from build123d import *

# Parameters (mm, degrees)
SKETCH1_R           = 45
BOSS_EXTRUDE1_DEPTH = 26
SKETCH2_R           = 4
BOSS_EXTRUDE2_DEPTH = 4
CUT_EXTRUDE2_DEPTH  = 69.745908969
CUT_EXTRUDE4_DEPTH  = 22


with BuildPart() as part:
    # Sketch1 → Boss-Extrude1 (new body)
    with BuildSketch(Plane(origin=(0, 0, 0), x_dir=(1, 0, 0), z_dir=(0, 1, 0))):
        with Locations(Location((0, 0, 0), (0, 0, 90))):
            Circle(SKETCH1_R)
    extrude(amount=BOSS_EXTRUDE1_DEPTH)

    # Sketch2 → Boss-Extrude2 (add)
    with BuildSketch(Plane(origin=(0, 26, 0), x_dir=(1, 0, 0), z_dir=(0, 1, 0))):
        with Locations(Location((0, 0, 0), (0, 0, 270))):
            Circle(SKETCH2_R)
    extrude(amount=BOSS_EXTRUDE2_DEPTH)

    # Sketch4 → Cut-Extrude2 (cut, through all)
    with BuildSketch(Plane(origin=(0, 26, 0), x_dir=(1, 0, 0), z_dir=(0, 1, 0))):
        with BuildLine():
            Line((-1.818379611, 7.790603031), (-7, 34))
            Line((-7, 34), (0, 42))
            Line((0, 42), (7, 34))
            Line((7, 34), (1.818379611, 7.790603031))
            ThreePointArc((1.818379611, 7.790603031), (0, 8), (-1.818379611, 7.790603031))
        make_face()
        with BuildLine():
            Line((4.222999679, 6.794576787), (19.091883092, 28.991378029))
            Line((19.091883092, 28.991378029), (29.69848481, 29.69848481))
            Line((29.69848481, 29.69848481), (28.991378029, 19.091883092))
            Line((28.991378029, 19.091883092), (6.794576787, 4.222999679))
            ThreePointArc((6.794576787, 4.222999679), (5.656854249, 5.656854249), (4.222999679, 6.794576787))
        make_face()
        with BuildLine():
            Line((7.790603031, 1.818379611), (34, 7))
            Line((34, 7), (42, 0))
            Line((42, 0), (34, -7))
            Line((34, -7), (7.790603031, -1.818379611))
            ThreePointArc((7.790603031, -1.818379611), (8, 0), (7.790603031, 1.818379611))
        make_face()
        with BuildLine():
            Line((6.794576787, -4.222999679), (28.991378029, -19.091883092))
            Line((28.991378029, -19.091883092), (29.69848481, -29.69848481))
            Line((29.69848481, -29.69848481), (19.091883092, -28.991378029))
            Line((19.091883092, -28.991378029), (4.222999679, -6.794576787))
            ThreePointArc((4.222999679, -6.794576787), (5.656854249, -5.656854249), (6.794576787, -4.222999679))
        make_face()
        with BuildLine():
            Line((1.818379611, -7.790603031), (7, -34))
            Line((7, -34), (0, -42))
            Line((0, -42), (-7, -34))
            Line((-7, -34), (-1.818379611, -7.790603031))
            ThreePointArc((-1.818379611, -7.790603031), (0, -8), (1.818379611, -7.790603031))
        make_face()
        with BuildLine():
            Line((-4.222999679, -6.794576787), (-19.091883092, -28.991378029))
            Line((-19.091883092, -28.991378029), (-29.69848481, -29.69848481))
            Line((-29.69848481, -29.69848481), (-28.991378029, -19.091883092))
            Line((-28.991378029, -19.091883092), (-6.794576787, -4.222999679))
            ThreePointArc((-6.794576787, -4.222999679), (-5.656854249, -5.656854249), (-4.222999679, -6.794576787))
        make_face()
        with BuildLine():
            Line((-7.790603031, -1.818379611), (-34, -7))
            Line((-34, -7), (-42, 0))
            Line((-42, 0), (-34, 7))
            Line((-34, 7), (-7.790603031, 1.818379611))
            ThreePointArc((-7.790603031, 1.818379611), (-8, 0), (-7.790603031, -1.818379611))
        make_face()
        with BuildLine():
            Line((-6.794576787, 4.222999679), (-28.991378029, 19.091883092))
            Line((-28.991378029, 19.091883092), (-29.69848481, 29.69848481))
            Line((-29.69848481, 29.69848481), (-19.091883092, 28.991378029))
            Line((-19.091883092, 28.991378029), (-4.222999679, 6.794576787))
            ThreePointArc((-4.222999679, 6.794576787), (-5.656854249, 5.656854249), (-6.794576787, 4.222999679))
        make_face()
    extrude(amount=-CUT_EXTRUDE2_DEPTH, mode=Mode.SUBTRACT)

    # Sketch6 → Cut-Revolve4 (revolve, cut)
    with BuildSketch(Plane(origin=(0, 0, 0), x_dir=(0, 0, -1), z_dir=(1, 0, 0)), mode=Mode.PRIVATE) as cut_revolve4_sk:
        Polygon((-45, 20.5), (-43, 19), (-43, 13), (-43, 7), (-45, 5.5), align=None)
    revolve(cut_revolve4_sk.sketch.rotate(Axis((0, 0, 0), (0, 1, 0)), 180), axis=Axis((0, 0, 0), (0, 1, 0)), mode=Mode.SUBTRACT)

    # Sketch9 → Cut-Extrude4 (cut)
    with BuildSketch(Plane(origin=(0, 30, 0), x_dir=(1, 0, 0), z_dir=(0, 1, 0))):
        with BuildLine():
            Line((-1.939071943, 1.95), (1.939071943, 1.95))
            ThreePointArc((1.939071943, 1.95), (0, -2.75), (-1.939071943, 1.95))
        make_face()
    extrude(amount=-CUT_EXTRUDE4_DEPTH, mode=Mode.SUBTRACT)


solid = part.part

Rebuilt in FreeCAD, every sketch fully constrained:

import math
import FreeCAD as App
import Part
import Sketcher
from FreeCAD import Vector
Q = App.Units.Quantity

doc = App.newDocument("Part")
body = doc.addObject("PartDesign::Body", "Body")

# Sketch on XZ plane
sketch1 = body.newObject("Sketcher::SketchObject", "Sketch")
sketch1.AttachmentSupport = (doc.getObject("XZ_Plane"), [""])
sketch1.MapMode = "FlatFace"
sketch1.addGeometry(Part.Circle(Vector(0, 0, 0), Vector(0, 0, 1), 45), False)
sketch1.addConstraint(Sketcher.Constraint("Coincident", 0, 3, -1, 1))
sketch1.addConstraint(Sketcher.Constraint("Diameter", 0, Q("90 mm")))
pad1 = body.newObject("PartDesign::Pad", "Pad")
pad1.Profile = sketch1
pad1.Length = 26
pad1.Reversed = True

# Sketch on XZ plane
sketch2 = body.newObject("Sketcher::SketchObject", "Sketch001")
sketch2.AttachmentSupport = (doc.getObject("XZ_Plane"), [""])
sketch2.MapMode = "FlatFace"
sketch2.AttachmentOffset = App.Placement(Vector(0, 0, -26), App.Rotation())
sketch2.addGeometry(Part.Circle(Vector(0, 0, 0), Vector(0, 0, 1), 4), False)
sketch2.addConstraint(Sketcher.Constraint("Coincident", 0, 3, -1, 1))
sketch2.addConstraint(Sketcher.Constraint("Diameter", 0, Q("8 mm")))
pad2 = body.newObject("PartDesign::Pad", "Pad001")
pad2.Profile = sketch2
pad2.Length = 4
pad2.Reversed = True

# Sketch on XZ plane
sketch3 = body.newObject("Sketcher::SketchObject", "Sketch002")
sketch3.AttachmentSupport = (doc.getObject("XZ_Plane"), [""])
sketch3.MapMode = "FlatFace"
sketch3.AttachmentOffset = App.Placement(Vector(0, 0, -26), App.Rotation())
sketch3.addGeometry(Part.LineSegment(Vector(-7, -34, 0), Vector(-1.8, -7.8, 0)), False)
sketch3.addGeometry(Part.ArcOfCircle(Part.Circle(Vector(0, 0, 0), Vector(0, 0, 1), 8), math.radians(-103), math.radians(-77)), False)
sketch3.addGeometry(Part.LineSegment(Vector(1.8, -7.8, 0), Vector(7, -34, 0)), False)
sketch3.addGeometry(Part.LineSegment(Vector(7, -34, 0), Vector(0, -42, 0)), False)
sketch3.addGeometry(Part.LineSegment(Vector(0, -42, 0), Vector(-7, -34, 0)), False)
sketch3.addGeometry(Part.LineSegment(Vector(19.1, -29, 0), Vector(4.2, -6.8, 0)), False)
sketch3.addGeometry(Part.ArcOfCircle(Part.Circle(Vector(0, 0, 0), Vector(0, 0, 1), 8), math.radians(-58), math.radians(-32)), False)
sketch3.addGeometry(Part.LineSegment(Vector(6.8, -4.2, 0), Vector(29, -19.1, 0)), False)
sketch3.addGeometry(Part.LineSegment(Vector(29, -19.1, 0), Vector(29.7, -29.7, 0)), False)
sketch3.addGeometry(Part.LineSegment(Vector(29.7, -29.7, 0), Vector(19.1, -29, 0)), False)
sketch3.addGeometry(Part.LineSegment(Vector(34, -7, 0), Vector(7.8, -1.8, 0)), False)
sketch3.addGeometry(Part.ArcOfCircle(Part.Circle(Vector(0, 0, 0), Vector(0, 0, 1), 8), math.radians(-13), math.radians(13)), False)
sketch3.addGeometry(Part.LineSegment(Vector(7.8, 1.8, 0), Vector(34, 7, 0)), False)
sketch3.addGeometry(Part.LineSegment(Vector(34, 7, 0), Vector(42, 0, 0)), False)
sketch3.addGeometry(Part.LineSegment(Vector(42, 0, 0), Vector(34, -7, 0)), False)
sketch3.addGeometry(Part.LineSegment(Vector(29, 19.1, 0), Vector(6.8, 4.2, 0)), False)
sketch3.addGeometry(Part.ArcOfCircle(Part.Circle(Vector(0, 0, 0), Vector(0, 0, 1), 8), math.radians(32), math.radians(58)), False)
sketch3.addGeometry(Part.LineSegment(Vector(4.2, 6.8, 0), Vector(19.1, 29, 0)), False)
sketch3.addGeometry(Part.LineSegment(Vector(19.1, 29, 0), Vector(29.7, 29.7, 0)), False)
sketch3.addGeometry(Part.LineSegment(Vector(29.7, 29.7, 0), Vector(29, 19.1, 0)), False)
sketch3.addGeometry(Part.LineSegment(Vector(7, 34, 0), Vector(1.8, 7.8, 0)), False)
sketch3.addGeometry(Part.ArcOfCircle(Part.Circle(Vector(0, 0, 0), Vector(0, 0, 1), 8), math.radians(77), math.radians(103)), False)
sketch3.addGeometry(Part.LineSegment(Vector(-1.8, 7.8, 0), Vector(-7, 34, 0)), False)
sketch3.addGeometry(Part.LineSegment(Vector(-7, 34, 0), Vector(0, 42, 0)), False)
sketch3.addGeometry(Part.LineSegment(Vector(0, 42, 0), Vector(7, 34, 0)), False)
sketch3.addGeometry(Part.LineSegment(Vector(-19.1, 29, 0), Vector(-4.2, 6.8, 0)), False)
sketch3.addGeometry(Part.ArcOfCircle(Part.Circle(Vector(0, 0, 0), Vector(0, 0, 1), 8), math.radians(122), math.radians(148)), False)
sketch3.addGeometry(Part.LineSegment(Vector(-6.8, 4.2, 0), Vector(-29, 19.1, 0)), False)
sketch3.addGeometry(Part.LineSegment(Vector(-29, 19.1, 0), Vector(-29.7, 29.7, 0)), False)
sketch3.addGeometry(Part.LineSegment(Vector(-29.7, 29.7, 0), Vector(-19.1, 29, 0)), False)
sketch3.addGeometry(Part.LineSegment(Vector(-34, 7, 0), Vector(-7.8, 1.8, 0)), False)
sketch3.addGeometry(Part.ArcOfCircle(Part.Circle(Vector(0, 0, 0), Vector(0, 0, 1), 8), math.radians(167), math.radians(193)), False)
sketch3.addGeometry(Part.LineSegment(Vector(-7.8, -1.8, 0), Vector(-34, -7, 0)), False)
sketch3.addGeometry(Part.LineSegment(Vector(-34, -7, 0), Vector(-42, 0, 0)), False)
sketch3.addGeometry(Part.LineSegment(Vector(-42, 0, 0), Vector(-34, 7, 0)), False)
sketch3.addGeometry(Part.LineSegment(Vector(-29, -19.1, 0), Vector(-6.8, -4.2, 0)), False)
sketch3.addGeometry(Part.ArcOfCircle(Part.Circle(Vector(0, 0, 0), Vector(0, 0, 1), 8), math.radians(-148), math.radians(-122)), False)
sketch3.addGeometry(Part.LineSegment(Vector(-4.2, -6.8, 0), Vector(-19.1, -29, 0)), False)
sketch3.addGeometry(Part.LineSegment(Vector(-19.1, -29, 0), Vector(-29.7, -29.7, 0)), False)
sketch3.addGeometry(Part.LineSegment(Vector(-29.7, -29.7, 0), Vector(-29, -19.1, 0)), False)
sketch3.addConstraint(Sketcher.Constraint("Coincident", 0, 2, 1, 1))
sketch3.addConstraint(Sketcher.Constraint("Coincident", 1, 2, 2, 1))
sketch3.addConstraint(Sketcher.Constraint("Coincident", 2, 2, 3, 1))
sketch3.addConstraint(Sketcher.Constraint("Coincident", 3, 2, 4, 1))
sketch3.addConstraint(Sketcher.Constraint("Coincident", 4, 2, 0, 1))
sketch3.addConstraint(Sketcher.Constraint("Coincident", 5, 2, 6, 1))
sketch3.addConstraint(Sketcher.Constraint("Coincident", 6, 2, 7, 1))
sketch3.addConstraint(Sketcher.Constraint("Coincident", 7, 2, 8, 1))
sketch3.addConstraint(Sketcher.Constraint("Coincident", 8, 2, 9, 1))
sketch3.addConstraint(Sketcher.Constraint("Coincident", 9, 2, 5, 1))
sketch3.addConstraint(Sketcher.Constraint("Coincident", 10, 2, 11, 1))
sketch3.addConstraint(Sketcher.Constraint("Coincident", 11, 2, 12, 1))
sketch3.addConstraint(Sketcher.Constraint("Coincident", 12, 2, 13, 1))
sketch3.addConstraint(Sketcher.Constraint("Coincident", 13, 2, 14, 1))
sketch3.addConstraint(Sketcher.Constraint("Coincident", 14, 2, 10, 1))
sketch3.addConstraint(Sketcher.Constraint("Coincident", 15, 2, 16, 1))
sketch3.addConstraint(Sketcher.Constraint("Coincident", 16, 2, 17, 1))
sketch3.addConstraint(Sketcher.Constraint("Coincident", 17, 2, 18, 1))
sketch3.addConstraint(Sketcher.Constraint("Coincident", 18, 2, 19, 1))
sketch3.addConstraint(Sketcher.Constraint("Coincident", 19, 2, 15, 1))
sketch3.addConstraint(Sketcher.Constraint("Coincident", 20, 2, 21, 1))
sketch3.addConstraint(Sketcher.Constraint("Coincident", 21, 2, 22, 1))
sketch3.addConstraint(Sketcher.Constraint("Coincident", 22, 2, 23, 1))
sketch3.addConstraint(Sketcher.Constraint("Coincident", 23, 2, 24, 1))
sketch3.addConstraint(Sketcher.Constraint("Coincident", 24, 2, 20, 1))
sketch3.addConstraint(Sketcher.Constraint("Coincident", 25, 2, 26, 1))
sketch3.addConstraint(Sketcher.Constraint("Coincident", 26, 2, 27, 1))
sketch3.addConstraint(Sketcher.Constraint("Coincident", 27, 2, 28, 1))
sketch3.addConstraint(Sketcher.Constraint("Coincident", 28, 2, 29, 1))
sketch3.addConstraint(Sketcher.Constraint("Coincident", 29, 2, 25, 1))
sketch3.addConstraint(Sketcher.Constraint("Coincident", 30, 2, 31, 1))
sketch3.addConstraint(Sketcher.Constraint("Coincident", 31, 2, 32, 1))
sketch3.addConstraint(Sketcher.Constraint("Coincident", 32, 2, 33, 1))
sketch3.addConstraint(Sketcher.Constraint("Coincident", 33, 2, 34, 1))
sketch3.addConstraint(Sketcher.Constraint("Coincident", 34, 2, 30, 1))
sketch3.addConstraint(Sketcher.Constraint("Coincident", 35, 2, 36, 1))
sketch3.addConstraint(Sketcher.Constraint("Coincident", 36, 2, 37, 1))
sketch3.addConstraint(Sketcher.Constraint("Coincident", 37, 2, 38, 1))
sketch3.addConstraint(Sketcher.Constraint("Coincident", 38, 2, 39, 1))
sketch3.addConstraint(Sketcher.Constraint("Coincident", 39, 2, 35, 1))
sketch3.addConstraint(Sketcher.Constraint("Coincident", 1, 3, -1, 1))
sketch3.addConstraint(Sketcher.Constraint("Coincident", 6, 3, -1, 1))
sketch3.addConstraint(Sketcher.Constraint("Coincident", 11, 3, -1, 1))
sketch3.addConstraint(Sketcher.Constraint("Coincident", 16, 3, -1, 1))
sketch3.addConstraint(Sketcher.Constraint("Coincident", 21, 3, -1, 1))
sketch3.addConstraint(Sketcher.Constraint("Coincident", 26, 3, -1, 1))
sketch3.addConstraint(Sketcher.Constraint("Coincident", 31, 3, -1, 1))
sketch3.addConstraint(Sketcher.Constraint("Coincident", 36, 3, -1, 1))
sketch3.addConstraint(Sketcher.Constraint("Equal", 1, 6))
sketch3.addConstraint(Sketcher.Constraint("Equal", 6, 11))
sketch3.addConstraint(Sketcher.Constraint("Equal", 11, 16))
sketch3.addConstraint(Sketcher.Constraint("Equal", 16, 21))
sketch3.addConstraint(Sketcher.Constraint("Equal", 21, 26))
sketch3.addConstraint(Sketcher.Constraint("Equal", 26, 31))
sketch3.addConstraint(Sketcher.Constraint("Equal", 31, 36))
sketch3.addConstraint(Sketcher.Constraint("Symmetric", 2, 2, 22, 2, -1, 1))
sketch3.addConstraint(Sketcher.Constraint("Symmetric", 3, 2, 23, 2, -1, 1))
sketch3.addConstraint(Sketcher.Constraint("Symmetric", 4, 2, 24, 2, -1, 1))
sketch3.addConstraint(Sketcher.Constraint("Symmetric", 7, 2, 27, 2, -1, 1))
sketch3.addConstraint(Sketcher.Constraint("Symmetric", 8, 2, 28, 2, -1, 1))
sketch3.addConstraint(Sketcher.Constraint("Symmetric", 9, 2, 29, 2, -1, 1))
sketch3.addConstraint(Sketcher.Constraint("Symmetric", 12, 2, 32, 2, -1, 1))
sketch3.addConstraint(Sketcher.Constraint("Symmetric", 13, 2, 33, 2, -1, 1))
sketch3.addConstraint(Sketcher.Constraint("Symmetric", 14, 2, 34, 2, -1, 1))
sketch3.addConstraint(Sketcher.Constraint("Symmetric", 17, 2, 37, 2, -1, 1))
sketch3.addConstraint(Sketcher.Constraint("Symmetric", 18, 2, 38, 2, -1, 1))
sketch3.addConstraint(Sketcher.Constraint("Symmetric", 19, 2, 39, 2, -1, 1))
sketch3.addConstraint(Sketcher.Constraint("Symmetric", 2, 2, 4, 2, -2))
sketch3.addConstraint(Sketcher.Constraint("Symmetric", 19, 2, 27, 2, -2))
sketch3.addConstraint(Sketcher.Constraint("Symmetric", 18, 2, 28, 2, -2))
sketch3.addConstraint(Sketcher.Constraint("Symmetric", 17, 2, 29, 2, -2))
sketch3.addConstraint(Sketcher.Constraint("Symmetric", 14, 2, 32, 2, -2))
sketch3.addConstraint(Sketcher.Constraint("PointOnObject", 3, 2, -2))
sketch3.addConstraint(Sketcher.Constraint("PointOnObject", 13, 2, -1))
sketch3.addConstraint(Sketcher.Constraint("Perpendicular", 0, 10))
sketch3.addConstraint(Sketcher.Constraint("Perpendicular", 2, 12))
sketch3.addConstraint(Sketcher.Constraint("Perpendicular", 3, 13))
sketch3.addConstraint(Sketcher.Constraint("Perpendicular", 5, 15))
sketch3.addConstraint(Sketcher.Constraint("Perpendicular", 7, 17))
sketch3.addConstraint(Sketcher.Constraint("Perpendicular", 8, 18))
sketch3.addConstraint(Sketcher.Constraint("Perpendicular", 10, 20))
sketch3.addConstraint(Sketcher.Constraint("Perpendicular", 12, 22))
sketch3.addConstraint(Sketcher.Constraint("Perpendicular", 15, 25))
sketch3.addConstraint(Sketcher.Constraint("Perpendicular", 17, 27))
sketch3.addConstraint(Sketcher.Constraint("Perpendicular", 20, 30))
sketch3.addConstraint(Sketcher.Constraint("Perpendicular", 22, 32))
sketch3.addConstraint(Sketcher.Constraint("Perpendicular", 25, 35))
sketch3.addConstraint(Sketcher.Constraint("Perpendicular", 27, 37))
sketch3.addConstraint(Sketcher.Constraint("Horizontal", 0, 2, 1, 2))
sketch3.addConstraint(Sketcher.Constraint("Horizontal", 16, 2, 25, 2))
sketch3.addConstraint(Sketcher.Constraint("Equal", 2, 5))
sketch3.addConstraint(Sketcher.Constraint("Equal", 5, 7))
sketch3.addConstraint(Sketcher.Constraint("Equal", 4, 8))
sketch3.addConstraint(Sketcher.Constraint("Equal", 8, 9))
sketch3.addConstraint(Sketcher.Constraint("Equal", 7, 10))
sketch3.addConstraint(Sketcher.Constraint("Equal", 9, 13))
sketch3.addConstraint(Sketcher.Constraint("Radius", 1, Q("8 mm")))
sketch3.addConstraint(Sketcher.Constraint("DistanceX", -1, 1, 2, 2, Q("7 mm")))
sketch3.addConstraint(Sketcher.Constraint("DistanceY", 2, 2, -1, 1, Q("34 mm")))
sketch3.addConstraint(Sketcher.Constraint("DistanceY", 3, 2, -1, 1, Q("42 mm")))
sketch3.addConstraint(Sketcher.Constraint("DistanceX", -1, 1, 5, 2, Q("4.223 mm")))
sketch3.addConstraint(Sketcher.Constraint("DistanceX", 1, 2, 7, 2, Q("27.172998 mm")))
sketch3.addConstraint(Sketcher.Constraint("DistanceX", 6, 2, 7, 2, Q("22.196801 mm")))
pocket1 = body.newObject("PartDesign::Pocket", "Pocket")
pocket1.Profile = sketch3
pocket1.Type = "ThroughAll"
pocket1.Reversed = True

# Sketch on YZ plane
sketch4 = body.newObject("Sketcher::SketchObject", "Sketch003")
sketch4.AttachmentSupport = (doc.getObject("YZ_Plane"), [""])
sketch4.MapMode = "FlatFace"
sketch4.addGeometry(Part.LineSegment(Vector(19, 43, 0), Vector(20.5, 45, 0)), False)
sketch4.addGeometry(Part.LineSegment(Vector(20.5, 45, 0), Vector(5.5, 45, 0)), False)
sketch4.addGeometry(Part.LineSegment(Vector(5.5, 45, 0), Vector(7, 43, 0)), False)
sketch4.addGeometry(Part.LineSegment(Vector(7, 43, 0), Vector(19, 43, 0)), False)
sketch4.addConstraint(Sketcher.Constraint("Coincident", 0, 2, 1, 1))
sketch4.addConstraint(Sketcher.Constraint("Coincident", 1, 2, 2, 1))
sketch4.addConstraint(Sketcher.Constraint("Coincident", 2, 2, 3, 1))
sketch4.addConstraint(Sketcher.Constraint("Coincident", 3, 2, 0, 1))
sketch4.addConstraint(Sketcher.Constraint("Horizontal", 1))
sketch4.addConstraint(Sketcher.Constraint("Horizontal", 3))
sketch4.addConstraint(Sketcher.Constraint("Equal", 0, 2))
sketch4.addConstraint(Sketcher.Constraint("DistanceX", 1, 2, 1, 1, Q("15 mm")))
sketch4.addConstraint(Sketcher.Constraint("DistanceX", 3, 1, 3, 2, Q("12 mm")))
sketch4.addConstraint(Sketcher.Constraint("DistanceY", -1, 1, 0, 2, Q("45 mm")))
sketch4.addConstraint(Sketcher.Constraint("DistanceX", -1, 1, 2, 2, Q("7 mm")))
sketch4.addConstraint(Sketcher.Constraint("DistanceY", -1, 1, 2, 2, Q("43 mm")))
groove = body.newObject("PartDesign::Groove", "Groove")
groove.Profile = sketch4
groove.ReferenceAxis = (sketch4, ["H_Axis"])
groove.Angle = 360

# Sketch on XZ plane
sketch5 = body.newObject("Sketcher::SketchObject", "Sketch004")
sketch5.AttachmentSupport = (doc.getObject("XZ_Plane"), [""])
sketch5.MapMode = "FlatFace"
sketch5.AttachmentOffset = App.Placement(Vector(0, 0, -30), App.Rotation())
sketch5.addGeometry(Part.LineSegment(Vector(1.9, -1.9, 0), Vector(-1.9, -1.9, 0)), False)
sketch5.addGeometry(Part.ArcOfCircle(Part.Circle(Vector(0, 0, 0), Vector(0, 0, 1), 2.8), math.radians(-45), math.radians(225)), False)
sketch5.addConstraint(Sketcher.Constraint("Coincident", 0, 1, 1, 1))
sketch5.addConstraint(Sketcher.Constraint("Coincident", 1, 2, 0, 2))
sketch5.addConstraint(Sketcher.Constraint("Horizontal", 0))
sketch5.addConstraint(Sketcher.Constraint("Coincident", 1, 3, -1, 1))
sketch5.addConstraint(Sketcher.Constraint("Radius", 1, Q("2.75 mm")))
sketch5.addConstraint(Sketcher.Constraint("DistanceY", 0, 1, -1, 1, Q("1.95 mm")))
pocket2 = body.newObject("PartDesign::Pocket", "Pocket001")
pocket2.Profile = sketch5
pocket2.Length = 22
pocket2.Reversed = True

doc.recompute()
